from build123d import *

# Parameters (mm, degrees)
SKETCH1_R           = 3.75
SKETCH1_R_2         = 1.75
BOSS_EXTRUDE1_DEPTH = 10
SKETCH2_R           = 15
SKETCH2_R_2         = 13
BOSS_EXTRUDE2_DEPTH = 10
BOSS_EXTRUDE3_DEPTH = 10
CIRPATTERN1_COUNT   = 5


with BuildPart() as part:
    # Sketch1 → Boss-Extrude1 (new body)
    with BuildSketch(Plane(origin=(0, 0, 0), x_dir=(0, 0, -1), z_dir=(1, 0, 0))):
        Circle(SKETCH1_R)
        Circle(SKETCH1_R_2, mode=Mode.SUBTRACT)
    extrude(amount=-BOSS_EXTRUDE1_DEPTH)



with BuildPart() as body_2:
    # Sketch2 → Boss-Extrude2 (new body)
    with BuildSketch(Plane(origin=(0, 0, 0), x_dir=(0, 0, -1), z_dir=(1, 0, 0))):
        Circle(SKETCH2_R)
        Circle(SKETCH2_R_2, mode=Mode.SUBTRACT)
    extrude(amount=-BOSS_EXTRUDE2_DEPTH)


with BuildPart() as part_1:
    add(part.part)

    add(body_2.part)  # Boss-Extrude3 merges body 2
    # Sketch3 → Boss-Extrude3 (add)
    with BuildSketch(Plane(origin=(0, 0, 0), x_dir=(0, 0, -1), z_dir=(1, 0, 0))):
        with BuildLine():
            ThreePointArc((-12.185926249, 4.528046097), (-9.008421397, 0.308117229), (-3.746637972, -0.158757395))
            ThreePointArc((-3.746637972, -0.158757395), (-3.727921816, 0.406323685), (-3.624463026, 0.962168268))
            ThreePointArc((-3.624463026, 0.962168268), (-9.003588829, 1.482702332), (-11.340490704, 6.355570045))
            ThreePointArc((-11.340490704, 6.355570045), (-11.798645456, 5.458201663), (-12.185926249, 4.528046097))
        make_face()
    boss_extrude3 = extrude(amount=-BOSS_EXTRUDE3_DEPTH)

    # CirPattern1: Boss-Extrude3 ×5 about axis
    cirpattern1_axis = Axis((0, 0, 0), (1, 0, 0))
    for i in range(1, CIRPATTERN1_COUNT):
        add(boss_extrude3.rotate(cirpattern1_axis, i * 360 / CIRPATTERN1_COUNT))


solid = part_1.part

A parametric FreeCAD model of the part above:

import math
import FreeCAD as App
import Part
import Sketcher
Q = App.Units.Quantity

doc = App.newDocument("Part")
body = doc.addObject("PartDesign::Body", "Body")

sketch1 = body.newObject("Sketcher::SketchObject", "Sketch")
sketch1.AttachmentSupport = (doc.getObject("YZ_Plane"), [""])
sketch1.MapMode = "FlatFace"
sketch1.addGeometry([
    Part.Circle(App.Vector(0, 0, 0), App.Vector(0, 0, 1), 3.8),
    Part.Circle(App.Vector(0, 0, 0), App.Vector(0, 0, 1), 1.8),
], False)
sketch1.addConstraint([
    Sketcher.Constraint("Coincident", 0, 3, -1, 1),
    Sketcher.Constraint("Coincident", 1, 3, -1, 1),
    Sketcher.Constraint("Diameter", 0, Q("7.5 mm")),
    Sketcher.Constraint("Diameter", 1, Q("3.5 mm")),
])
pad1 = body.newObject("PartDesign::Pad", "Pad")
pad1.Profile = sketch1
pad1.Length = 10
pad1.Reversed = True
body2 = doc.addObject("PartDesign::Body", "Body001")

sketch2 = body2.newObject("Sketcher::SketchObject", "Sketch001")
sketch2.AttachmentSupport = (doc.getObject("YZ_Plane001"), [""])
sketch2.MapMode = "FlatFace"
sketch2.addGeometry([
    Part.Circle(App.Vector(0, 0, 0), App.Vector(0, 0, 1), 15),
    Part.Circle(App.Vector(0, 0, 0), App.Vector(0, 0, 1), 13),
], False)
sketch2.addConstraint([
    Sketcher.Constraint("Coincident", 0, 3, -1, 1),
    Sketcher.Constraint("Coincident", 1, 3, -1, 1),
    Sketcher.Constraint("Diameter", 0, Q("30 mm")),
    Sketcher.Constraint("Diameter", 1, Q("26 mm")),
])
pad2 = body2.newObject("PartDesign::Pad", "Pad001")
pad2.Profile = sketch2
pad2.Length = 10
pad2.Reversed = True
body.AllowCompound = True
doc.recompute()

boolean = body.newObject("PartDesign::Boolean", "Boolean")
boolean.Type = "Fuse"
boolean.addObjects([body2])

sketch3 = body.newObject("Sketcher::SketchObject", "Sketch002")
sketch3.AttachmentSupport = (doc.getObject("YZ_Plane"), [""])
sketch3.MapMode = "FlatFace"
sketch3.addGeometry([
    Part.ArcOfCircle(Part.Circle(App.Vector(6, 5.9, 0), App.Vector(0, 0, 1), 6.5), math.radians(103), math.radians(199)),
    Part.ArcOfCircle(Part.Circle(App.Vector(0, 0, 0), App.Vector(0, 0, 1), 3.8), math.radians(75.13), math.radians(92.43)),
    Part.ArcOfCircle(Part.Circle(App.Vector(6, 5.9, 0), App.Vector(0, 0, 1), 5.5), math.radians(86), math.radians(204)),
    Part.ArcOfCircle(Part.Circle(App.Vector(0, 0, 0), App.Vector(0, 0, 1), 13), math.radians(60.73), math.radians(69.62)),
], False)
sketch3.addConstraint([
    Sketcher.Constraint("Coincident", 0, 2, 1, 2),
    Sketcher.Constraint("Coincident", 1, 1, 2, 2),
    Sketcher.Constraint("Coincident", 2, 1, 3, 1),
    Sketcher.Constraint("Coincident", 3, 2, 0, 1),
    Sketcher.Constraint("Coincident", 1, 3, -1, 1),
    Sketcher.Constraint("Coincident", 3, 3, -1, 1),
    Sketcher.Constraint("Coincident", 2, 3, 0, 3),
    Sketcher.Constraint("Radius", 3, Q("13 mm")),
    Sketcher.Constraint("Radius", 0, Q("6.5 mm")),
    Sketcher.Constraint("Radius", 2, Q("5.5 mm")),
    Sketcher.Constraint("Radius", 1, Q("3.75 mm")),
    Sketcher.Constraint("DistanceX", 1, 1, 2, 1, Q("5.393402 mm")),
    Sketcher.Constraint("DistanceY", -1, 1, 0, 3, Q("5.852612 mm")),
])
pad3 = body.newObject("PartDesign::Pad", "Pad002")
pad3.Profile = sketch3
pad3.Length = 10
pad3.Reversed = True
doc.recompute()

polarpattern = body.newObject("PartDesign::PolarPattern", "PolarPattern")
polarpattern.Originals = [pad3]
polarpattern.Axis = (doc.getObject("X_Axis"), [""])
polarpattern.Angle = 360
polarpattern.Occurrences = 5
body.Tip = polarpattern

doc.recompute()
